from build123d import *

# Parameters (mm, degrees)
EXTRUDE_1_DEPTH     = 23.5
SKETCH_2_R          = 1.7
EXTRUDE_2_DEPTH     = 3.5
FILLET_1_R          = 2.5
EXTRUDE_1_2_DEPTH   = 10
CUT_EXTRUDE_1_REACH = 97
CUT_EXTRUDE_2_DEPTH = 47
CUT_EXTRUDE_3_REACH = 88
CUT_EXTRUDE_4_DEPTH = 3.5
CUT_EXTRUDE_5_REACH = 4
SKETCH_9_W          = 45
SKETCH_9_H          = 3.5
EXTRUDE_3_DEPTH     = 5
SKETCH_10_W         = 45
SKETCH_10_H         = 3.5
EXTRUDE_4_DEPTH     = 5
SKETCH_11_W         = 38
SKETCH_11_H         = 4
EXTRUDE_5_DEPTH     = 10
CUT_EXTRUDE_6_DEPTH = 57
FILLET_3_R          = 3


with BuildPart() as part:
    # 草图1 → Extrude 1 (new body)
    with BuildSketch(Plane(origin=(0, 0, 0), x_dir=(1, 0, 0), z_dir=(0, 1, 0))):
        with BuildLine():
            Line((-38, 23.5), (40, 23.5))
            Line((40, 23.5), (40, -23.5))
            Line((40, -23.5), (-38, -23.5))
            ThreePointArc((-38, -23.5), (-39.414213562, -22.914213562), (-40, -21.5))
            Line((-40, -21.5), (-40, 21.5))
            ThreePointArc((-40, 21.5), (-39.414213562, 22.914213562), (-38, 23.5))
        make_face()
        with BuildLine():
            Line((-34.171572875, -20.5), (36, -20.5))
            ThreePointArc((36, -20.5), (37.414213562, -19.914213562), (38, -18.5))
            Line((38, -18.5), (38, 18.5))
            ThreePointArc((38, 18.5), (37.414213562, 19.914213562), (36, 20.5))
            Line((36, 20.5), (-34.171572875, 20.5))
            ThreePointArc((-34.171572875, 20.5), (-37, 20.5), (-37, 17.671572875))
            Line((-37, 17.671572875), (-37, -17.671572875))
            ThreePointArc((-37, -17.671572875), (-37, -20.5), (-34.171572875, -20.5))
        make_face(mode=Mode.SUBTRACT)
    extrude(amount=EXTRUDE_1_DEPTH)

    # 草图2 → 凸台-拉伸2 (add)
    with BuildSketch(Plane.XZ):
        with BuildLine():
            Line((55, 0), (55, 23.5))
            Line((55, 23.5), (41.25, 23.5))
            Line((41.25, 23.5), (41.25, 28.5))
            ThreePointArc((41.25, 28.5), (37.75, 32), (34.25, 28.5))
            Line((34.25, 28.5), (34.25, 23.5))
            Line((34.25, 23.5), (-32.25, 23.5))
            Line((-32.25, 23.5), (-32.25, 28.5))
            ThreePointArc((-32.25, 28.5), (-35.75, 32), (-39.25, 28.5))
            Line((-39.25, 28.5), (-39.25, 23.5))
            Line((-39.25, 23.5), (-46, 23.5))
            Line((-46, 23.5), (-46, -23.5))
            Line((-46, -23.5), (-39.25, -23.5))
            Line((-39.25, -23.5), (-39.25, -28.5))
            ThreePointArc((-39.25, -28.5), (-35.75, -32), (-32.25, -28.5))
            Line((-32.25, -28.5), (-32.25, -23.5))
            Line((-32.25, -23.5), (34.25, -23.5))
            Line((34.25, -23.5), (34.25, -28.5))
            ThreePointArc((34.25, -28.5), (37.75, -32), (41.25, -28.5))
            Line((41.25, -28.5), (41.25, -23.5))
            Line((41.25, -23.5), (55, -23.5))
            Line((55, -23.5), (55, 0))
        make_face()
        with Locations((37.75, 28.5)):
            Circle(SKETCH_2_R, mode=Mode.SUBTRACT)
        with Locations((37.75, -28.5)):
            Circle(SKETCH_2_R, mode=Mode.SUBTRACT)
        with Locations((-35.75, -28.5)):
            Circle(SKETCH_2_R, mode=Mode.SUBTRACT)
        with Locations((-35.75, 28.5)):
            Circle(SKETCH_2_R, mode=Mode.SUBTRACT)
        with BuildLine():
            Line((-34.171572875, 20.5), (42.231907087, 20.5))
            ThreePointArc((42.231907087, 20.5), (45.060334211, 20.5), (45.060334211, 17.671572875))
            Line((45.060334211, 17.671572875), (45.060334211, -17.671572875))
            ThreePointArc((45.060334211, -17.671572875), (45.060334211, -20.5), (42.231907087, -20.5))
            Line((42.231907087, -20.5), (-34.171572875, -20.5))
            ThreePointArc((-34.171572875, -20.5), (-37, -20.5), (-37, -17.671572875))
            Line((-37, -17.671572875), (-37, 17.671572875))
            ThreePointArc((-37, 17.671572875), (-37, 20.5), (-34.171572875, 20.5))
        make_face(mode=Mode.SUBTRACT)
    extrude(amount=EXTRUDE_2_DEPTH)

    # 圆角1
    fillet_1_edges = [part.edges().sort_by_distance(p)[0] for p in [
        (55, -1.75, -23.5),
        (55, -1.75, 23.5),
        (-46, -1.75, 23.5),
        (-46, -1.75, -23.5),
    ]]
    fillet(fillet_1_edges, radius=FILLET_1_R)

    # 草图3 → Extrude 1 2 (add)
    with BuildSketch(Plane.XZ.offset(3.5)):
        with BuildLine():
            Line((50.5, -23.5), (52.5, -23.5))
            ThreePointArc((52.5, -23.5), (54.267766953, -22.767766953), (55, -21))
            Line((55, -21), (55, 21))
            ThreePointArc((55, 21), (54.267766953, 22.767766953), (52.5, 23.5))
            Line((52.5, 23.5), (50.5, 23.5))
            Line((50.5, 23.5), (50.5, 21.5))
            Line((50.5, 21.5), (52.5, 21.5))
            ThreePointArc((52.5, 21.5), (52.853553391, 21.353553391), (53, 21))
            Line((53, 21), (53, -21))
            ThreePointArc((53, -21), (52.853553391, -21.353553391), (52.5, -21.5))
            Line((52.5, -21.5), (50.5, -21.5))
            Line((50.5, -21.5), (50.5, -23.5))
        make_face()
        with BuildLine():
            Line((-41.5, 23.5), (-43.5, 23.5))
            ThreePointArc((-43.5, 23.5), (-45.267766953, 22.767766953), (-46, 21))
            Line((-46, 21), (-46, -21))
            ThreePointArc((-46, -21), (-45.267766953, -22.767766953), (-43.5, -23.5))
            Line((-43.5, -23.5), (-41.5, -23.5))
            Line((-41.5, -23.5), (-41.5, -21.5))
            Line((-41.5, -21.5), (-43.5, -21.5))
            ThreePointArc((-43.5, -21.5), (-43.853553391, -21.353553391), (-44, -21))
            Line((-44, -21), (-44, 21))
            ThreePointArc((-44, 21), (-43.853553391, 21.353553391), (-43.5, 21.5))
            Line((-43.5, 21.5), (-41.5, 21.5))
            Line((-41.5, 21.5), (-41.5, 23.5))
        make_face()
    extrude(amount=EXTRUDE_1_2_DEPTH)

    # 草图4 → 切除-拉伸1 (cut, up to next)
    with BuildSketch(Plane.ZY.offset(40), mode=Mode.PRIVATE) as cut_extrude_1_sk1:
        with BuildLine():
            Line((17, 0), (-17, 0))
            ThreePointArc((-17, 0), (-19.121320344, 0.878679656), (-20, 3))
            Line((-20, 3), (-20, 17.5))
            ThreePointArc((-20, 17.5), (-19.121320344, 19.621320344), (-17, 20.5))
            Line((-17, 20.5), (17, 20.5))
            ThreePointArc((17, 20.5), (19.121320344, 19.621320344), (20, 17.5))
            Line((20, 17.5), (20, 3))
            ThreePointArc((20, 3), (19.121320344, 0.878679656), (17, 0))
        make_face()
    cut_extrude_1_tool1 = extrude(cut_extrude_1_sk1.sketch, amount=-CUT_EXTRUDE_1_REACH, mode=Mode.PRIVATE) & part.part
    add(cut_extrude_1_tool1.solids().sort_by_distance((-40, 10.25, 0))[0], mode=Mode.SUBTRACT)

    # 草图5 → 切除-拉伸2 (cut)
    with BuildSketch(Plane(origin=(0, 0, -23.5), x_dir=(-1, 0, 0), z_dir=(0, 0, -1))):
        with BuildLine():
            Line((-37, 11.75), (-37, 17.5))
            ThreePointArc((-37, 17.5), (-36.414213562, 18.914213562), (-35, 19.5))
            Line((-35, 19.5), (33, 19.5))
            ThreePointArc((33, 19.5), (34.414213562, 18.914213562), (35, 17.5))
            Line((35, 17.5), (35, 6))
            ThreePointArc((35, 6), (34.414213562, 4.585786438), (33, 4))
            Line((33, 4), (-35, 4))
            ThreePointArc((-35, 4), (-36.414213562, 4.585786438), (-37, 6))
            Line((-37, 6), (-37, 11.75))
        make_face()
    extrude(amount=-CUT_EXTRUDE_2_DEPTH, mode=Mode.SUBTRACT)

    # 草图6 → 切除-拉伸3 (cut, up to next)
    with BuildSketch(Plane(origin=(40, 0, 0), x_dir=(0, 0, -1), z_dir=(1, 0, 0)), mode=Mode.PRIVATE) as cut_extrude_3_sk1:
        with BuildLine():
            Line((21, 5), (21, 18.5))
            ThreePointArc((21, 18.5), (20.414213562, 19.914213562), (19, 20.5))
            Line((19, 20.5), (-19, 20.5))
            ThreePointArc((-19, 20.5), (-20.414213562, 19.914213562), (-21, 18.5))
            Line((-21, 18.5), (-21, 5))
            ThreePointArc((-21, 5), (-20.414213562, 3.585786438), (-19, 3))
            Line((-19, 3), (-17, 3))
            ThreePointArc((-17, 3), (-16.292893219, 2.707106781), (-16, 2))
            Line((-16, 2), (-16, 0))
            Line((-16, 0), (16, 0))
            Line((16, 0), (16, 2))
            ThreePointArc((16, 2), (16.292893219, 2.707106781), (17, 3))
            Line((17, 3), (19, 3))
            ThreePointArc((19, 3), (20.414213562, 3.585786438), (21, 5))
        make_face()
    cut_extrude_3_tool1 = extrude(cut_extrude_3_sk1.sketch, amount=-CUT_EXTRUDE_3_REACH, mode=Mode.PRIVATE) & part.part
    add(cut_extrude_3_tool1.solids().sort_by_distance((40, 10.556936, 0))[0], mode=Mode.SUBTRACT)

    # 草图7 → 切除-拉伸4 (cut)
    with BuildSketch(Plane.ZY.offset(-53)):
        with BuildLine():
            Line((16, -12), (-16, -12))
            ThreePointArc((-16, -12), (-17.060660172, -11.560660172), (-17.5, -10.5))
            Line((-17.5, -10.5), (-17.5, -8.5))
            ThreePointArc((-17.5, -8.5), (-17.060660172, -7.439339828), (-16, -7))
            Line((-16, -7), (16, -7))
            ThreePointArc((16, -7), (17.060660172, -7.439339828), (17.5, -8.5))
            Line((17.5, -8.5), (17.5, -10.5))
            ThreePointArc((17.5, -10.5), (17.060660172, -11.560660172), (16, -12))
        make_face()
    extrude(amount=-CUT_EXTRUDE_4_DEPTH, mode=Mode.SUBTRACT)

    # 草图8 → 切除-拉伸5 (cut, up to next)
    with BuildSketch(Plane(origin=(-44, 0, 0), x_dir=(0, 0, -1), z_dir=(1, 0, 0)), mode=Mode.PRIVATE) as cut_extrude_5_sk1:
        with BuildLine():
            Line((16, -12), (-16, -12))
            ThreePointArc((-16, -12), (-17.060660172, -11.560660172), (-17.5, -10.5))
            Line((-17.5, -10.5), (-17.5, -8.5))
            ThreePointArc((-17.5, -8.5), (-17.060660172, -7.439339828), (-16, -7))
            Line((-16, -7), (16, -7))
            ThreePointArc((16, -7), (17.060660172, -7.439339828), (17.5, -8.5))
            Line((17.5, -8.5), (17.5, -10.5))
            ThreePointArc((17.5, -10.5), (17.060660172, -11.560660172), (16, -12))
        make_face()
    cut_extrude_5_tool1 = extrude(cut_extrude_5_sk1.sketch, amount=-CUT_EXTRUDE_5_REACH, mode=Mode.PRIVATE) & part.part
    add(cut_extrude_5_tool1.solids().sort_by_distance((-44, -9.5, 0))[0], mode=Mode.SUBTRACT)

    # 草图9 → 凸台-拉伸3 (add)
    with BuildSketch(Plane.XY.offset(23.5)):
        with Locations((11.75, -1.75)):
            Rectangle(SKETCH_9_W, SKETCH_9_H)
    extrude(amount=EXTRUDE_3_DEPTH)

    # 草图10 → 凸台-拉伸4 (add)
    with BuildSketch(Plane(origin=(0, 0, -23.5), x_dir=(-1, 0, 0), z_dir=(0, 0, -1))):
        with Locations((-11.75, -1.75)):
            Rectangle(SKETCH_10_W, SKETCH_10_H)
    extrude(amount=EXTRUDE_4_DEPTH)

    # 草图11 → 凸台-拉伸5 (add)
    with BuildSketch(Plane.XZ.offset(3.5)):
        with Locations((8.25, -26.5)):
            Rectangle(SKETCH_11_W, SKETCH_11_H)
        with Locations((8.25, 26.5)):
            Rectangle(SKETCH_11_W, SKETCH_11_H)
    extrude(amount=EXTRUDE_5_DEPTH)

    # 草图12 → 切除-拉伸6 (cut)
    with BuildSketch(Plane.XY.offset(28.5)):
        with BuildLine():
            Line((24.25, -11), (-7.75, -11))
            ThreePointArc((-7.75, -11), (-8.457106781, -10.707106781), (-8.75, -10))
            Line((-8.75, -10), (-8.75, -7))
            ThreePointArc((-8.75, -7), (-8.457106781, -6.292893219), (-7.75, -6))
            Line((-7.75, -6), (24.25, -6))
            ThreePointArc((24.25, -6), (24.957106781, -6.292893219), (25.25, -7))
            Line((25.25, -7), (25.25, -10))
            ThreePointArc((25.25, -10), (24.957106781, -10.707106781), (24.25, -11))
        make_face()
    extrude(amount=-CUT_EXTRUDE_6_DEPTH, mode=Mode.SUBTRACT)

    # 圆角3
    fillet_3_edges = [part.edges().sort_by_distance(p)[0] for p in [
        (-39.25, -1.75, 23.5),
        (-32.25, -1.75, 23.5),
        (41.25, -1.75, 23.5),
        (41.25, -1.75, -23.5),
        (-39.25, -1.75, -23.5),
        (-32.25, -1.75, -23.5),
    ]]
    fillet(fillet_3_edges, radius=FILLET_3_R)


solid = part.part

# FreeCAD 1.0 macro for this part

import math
import FreeCAD as App
import Part
import Sketcher
from FreeCAD import Vector
Q = App.Units.Quantity


def edges_at(feature, points):
    """Names of the edges that pass closest to the given points."""
    edges = feature.Shape.Edges
    near = lambda p: min(range(len(edges)), key=lambda i: edges[i].distToShape(Part.Vertex(*p))[0])
    return sorted({f"Edge{near(p) + 1}" for p in points})

doc = App.newDocument("Part")
body = doc.addObject("PartDesign::Body", "Body")

# Sketch on XZ plane
sketch1 = body.newObject("Sketcher::SketchObject", "Sketch")
sketch1.AttachmentSupport = (doc.getObject("XZ_Plane"), [""])
sketch1.MapMode = "FlatFace"
sketch1.addGeometry([
    Part.LineSegment(Vector(40, -23.5, 0), Vector(-38, -23.5, 0)),  # 0
    Part.ArcOfCircle(Part.Circle(Vector(-38, -21.5, 0), Vector(0, 0, 1), 2), math.radians(-180), math.radians(-90)),  # 1
    Part.LineSegment(Vector(-40, -21.5, 0), Vector(-40, 21.5, 0)),  # 2
    Part.ArcOfCircle(Part.Circle(Vector(-38, 21.5, 0), Vector(0, 0, 1), 2), math.radians(90), math.radians(180)),  # 3
    Part.LineSegment(Vector(-38, 23.5, 0), Vector(40, 23.5, 0)),  # 4
    Part.LineSegment(Vector(40, 23.5, 0), Vector(40, -23.5, 0)),  # 5
    Part.ArcOfCircle(Part.Circle(Vector(-35.6, 19.1, 0), Vector(0, 0, 1), 2), math.radians(45), math.radians(225)),  # 6
    Part.LineSegment(Vector(-37, 17.7, 0), Vector(-37, -17.7, 0)),  # 7
    Part.ArcOfCircle(Part.Circle(Vector(-35.6, -19.1, 0), Vector(0, 0, 1), 2), math.radians(135), math.radians(315)),  # 8
    Part.LineSegment(Vector(-34.2, -20.5, 0), Vector(36, -20.5, 0)),  # 9
    Part.ArcOfCircle(Part.Circle(Vector(36, -18.5, 0), Vector(0, 0, 1), 2), math.radians(-90), math.radians(0)),  # 10
    Part.LineSegment(Vector(38, -18.5, 0), Vector(38, 18.5, 0)),  # 11
    Part.ArcOfCircle(Part.Circle(Vector(36, 18.5, 0), Vector(0, 0, 1), 2), math.radians(0), math.radians(90)),  # 12
    Part.LineSegment(Vector(36, 20.5, 0), Vector(-34.2, 20.5, 0)),  # 13
], False)
sketch1.addConstraint([
    Sketcher.Constraint("Tangent", 0, 2, 1, 2),
    Sketcher.Constraint("Tangent", 1, 1, 2, 1),
    Sketcher.Constraint("Tangent", 2, 2, 3, 2),
    Sketcher.Constraint("Tangent", 3, 1, 4, 1),
    Sketcher.Constraint("Coincident", 4, 2, 5, 1),
    Sketcher.Constraint("Coincident", 5, 2, 0, 1),
    Sketcher.Constraint("Coincident", 6, 2, 7, 1),
    Sketcher.Constraint("Coincident", 7, 2, 8, 1),
    Sketcher.Constraint("Coincident", 8, 2, 9, 1),
    Sketcher.Constraint("Tangent", 9, 2, 10, 1),
    Sketcher.Constraint("Tangent", 10, 2, 11, 1),
    Sketcher.Constraint("Tangent", 11, 2, 12, 1),
    Sketcher.Constraint("Tangent", 12, 2, 13, 1),
    Sketcher.Constraint("Coincident", 13, 2, 6, 1),
    Sketcher.Constraint("Horizontal", 0),
    Sketcher.Constraint("Vertical", 2),
    Sketcher.Constraint("Horizontal", 4),
    Sketcher.Constraint("Vertical", 5),
    Sketcher.Constraint("Vertical", 7),
    Sketcher.Constraint("Horizontal", 9),
    Sketcher.Constraint("Vertical", 11),
    Sketcher.Constraint("Horizontal", 13),
    Sketcher.Constraint("Equal", 1, 3),
    Sketcher.Constraint("Equal", 3, 6),
    Sketcher.Constraint("Equal", 6, 8),
    Sketcher.Constraint("Equal", 8, 10),
    Sketcher.Constraint("Equal", 10, 12),
    Sketcher.Constraint("Symmetric", 6, 3, 8, 3, -1),
    Sketcher.Constraint("Vertical", 8, 2, 13, 2),
    Sketcher.Constraint("Radius", 1, Q("2 mm")),
    Sketcher.Constraint("DistanceX", 0, 2, 0, 1, Q("78 mm")),
    Sketcher.Constraint("DistanceY", 2, 1, 2, 2, Q("43 mm")),
    Sketcher.Constraint("DistanceY", 11, 1, 11, 2, Q("37 mm")),
    Sketcher.Constraint("DistanceX", 1, 3, -1, 1, Q("38 mm")),
    Sketcher.Constraint("DistanceX", -1, 1, 10, 3, Q("36 mm")),
    Sketcher.Constraint("DistanceX", 6, 2, -1, 1, Q("37 mm")),
    Sketcher.Constraint("DistanceY", 1, 3, 10, 3, Q("3 mm")),
    Sketcher.Constraint("DistanceX", 9, 1, 9, 2, Q("70.171573 mm")),
    Sketcher.Constraint("DistanceY", 8, 3, 6, 2, Q("36.757359 mm")),
])
pad1 = body.newObject("PartDesign::Pad", "Pad")
pad1.Profile = sketch1
pad1.Length = 23.5
pad1.Reversed = True

# Sketch on XZ plane
sketch2 = body.newObject("Sketcher::SketchObject", "Sketch001")
sketch2.AttachmentSupport = (doc.getObject("XZ_Plane"), [""])
sketch2.MapMode = "FlatFace"
sketch2.addGeometry([
    Part.LineSegment(Vector(55, 23.5, 0), Vector(41.2, 23.5, 0)),  # 0
    Part.LineSegment(Vector(41.2, 23.5, 0), Vector(41.2, 28.5, 0)),  # 1
    Part.ArcOfCircle(Part.Circle(Vector(37.8, 28.5, 0), Vector(0, 0, 1), 3.5), math.radians(0), math.radians(180)),  # 2
    Part.LineSegment(Vector(34.2, 28.5, 0), Vector(34.2, 23.5, 0)),  # 3
    Part.LineSegment(Vector(34.2, 23.5, 0), Vector(-32.2, 23.5, 0)),  # 4
    Part.LineSegment(Vector(-32.2, 23.5, 0), Vector(-32.2, 28.5, 0)),  # 5
    Part.ArcOfCircle(Part.Circle(Vector(-35.8, 28.5, 0), Vector(0, 0, 1), 3.5), math.radians(0), math.radians(180)),  # 6
    Part.LineSegment(Vector(-39.2, 28.5, 0), Vector(-39.2, 23.5, 0)),  # 7
    Part.LineSegment(Vector(-39.2, 23.5, 0), Vector(-46, 23.5, 0)),  # 8
    Part.LineSegment(Vector(-46, 23.5, 0), Vector(-46, -23.5, 0)),  # 9
    Part.LineSegment(Vector(-46, -23.5, 0), Vector(-39.2, -23.5, 0)),  # 10
    Part.LineSegment(Vector(-39.2, -23.5, 0), Vector(-39.2, -28.5, 0)),  # 11
    Part.ArcOfCircle(Part.Circle(Vector(-35.8, -28.5, 0), Vector(0, 0, 1), 3.5), math.radians(180), math.radians(360)),  # 12
    Part.LineSegment(Vector(-32.2, -28.5, 0), Vector(-32.2, -23.5, 0)),  # 13
    Part.LineSegment(Vector(-32.2, -23.5, 0), Vector(34.2, -23.5, 0)),  # 14
    Part.LineSegment(Vector(34.2, -23.5, 0), Vector(34.2, -28.5, 0)),  # 15
    Part.ArcOfCircle(Part.Circle(Vector(37.8, -28.5, 0), Vector(0, 0, 1), 3.5), math.radians(180), math.radians(360)),  # 16
    Part.LineSegment(Vector(41.2, -28.5, 0), Vector(41.2, -23.5, 0)),  # 17
    Part.LineSegment(Vector(41.2, -23.5, 0), Vector(55, -23.5, 0)),  # 18
    Part.LineSegment(Vector(55, -23.5, 0), Vector(55, 23.5, 0)),  # 19
    Part.Circle(Vector(-35.8, -28.5, 0), Vector(0, 0, 1), 1.7),  # 20
    Part.Circle(Vector(37.8, -28.5, 0), Vector(0, 0, 1), 1.7),  # 21
    Part.Circle(Vector(-35.8, 28.5, 0), Vector(0, 0, 1), 1.7),  # 22
    Part.ArcOfCircle(Part.Circle(Vector(-35.6, 19.1, 0), Vector(0, 0, 1), 2), math.radians(45), math.radians(225)),  # 23
    Part.LineSegment(Vector(-34.2, 20.5, 0), Vector(42.2, 20.5, 0)),  # 24
    Part.ArcOfCircle(Part.Circle(Vector(43.6, 19.1, 0), Vector(0, 0, 1), 2), math.radians(-45), math.radians(135)),  # 25
    Part.LineSegment(Vector(45.1, 17.7, 0), Vector(45.1, -17.7, 0)),  # 26
    Part.ArcOfCircle(Part.Circle(Vector(43.6, -19.1, 0), Vector(0, 0, 1), 2), math.radians(-135), math.radians(45)),  # 27
    Part.LineSegment(Vector(42.2, -20.5, 0), Vector(-34.2, -20.5, 0)),  # 28
    Part.ArcOfCircle(Part.Circle(Vector(-35.6, -19.1, 0), Vector(0, 0, 1), 2), math.radians(135), math.radians(315)),  # 29
    Part.LineSegment(Vector(-37, -17.7, 0), Vector(-37, 17.7, 0)),  # 30
    Part.Circle(Vector(37.8, 28.5, 0), Vector(0, 0, 1), 1.7),  # 31
], False)
sketch2.addConstraint([
    Sketcher.Constraint("Coincident", 0, 2, 1, 1),
    Sketcher.Constraint("Tangent", 1, 2, 2, 1),
    Sketcher.Constraint("Tangent", 2, 2, 3, 1),
    Sketcher.Constraint("Coincident", 3, 2, 4, 1),
    Sketcher.Constraint("Coincident", 4, 2, 5, 1),
    Sketcher.Constraint("Tangent", 5, 2, 6, 1),
    Sketcher.Constraint("Tangent", 6, 2, 7, 1),
    Sketcher.Constraint("Coincident", 7, 2, 8, 1),
    Sketcher.Constraint("Coincident", 8, 2, 9, 1),
    Sketcher.Constraint("Coincident", 9, 2, 10, 1),
    Sketcher.Constraint("Coincident", 10, 2, 11, 1),
    Sketcher.Constraint("Tangent", 11, 2, 12, 1),
    Sketcher.Constraint("Tangent", 12, 2, 13, 1),
    Sketcher.Constraint("Coincident", 13, 2, 14, 1),
    Sketcher.Constraint("Coincident", 14, 2, 15, 1),
    Sketcher.Constraint("Tangent", 15, 2, 16, 1),
    Sketcher.Constraint("Tangent", 16, 2, 17, 1),
    Sketcher.Constraint("Coincident", 17, 2, 18, 1),
    Sketcher.Constraint("Coincident", 18, 2, 19, 1),
    Sketcher.Constraint("Coincident", 19, 2, 0, 1),
    Sketcher.Constraint("Coincident", 23, 1, 24, 1),
    Sketcher.Constraint("Coincident", 24, 2, 25, 2),
    Sketcher.Constraint("Coincident", 25, 1, 26, 1),
    Sketcher.Constraint("Coincident", 26, 2, 27, 2),
    Sketcher.Constraint("Coincident", 27, 1, 28, 1),
    Sketcher.Constraint("Coincident", 28, 2, 29, 2),
    Sketcher.Constraint("Coincident", 29, 1, 30, 1),
    Sketcher.Constraint("Coincident", 30, 2, 23, 2),
    Sketcher.Constraint("Horizontal", 0),
    Sketcher.Constraint("Vertical", 1),
    Sketcher.Constraint("Vertical", 3),
    Sketcher.Constraint("Horizontal", 4),
    Sketcher.Constraint("Vertical", 5),
    Sketcher.Constraint("Vertical", 7),
    Sketcher.Constraint("Horizontal", 8),
    Sketcher.Constraint("Vertical", 9),
    Sketcher.Constraint("Horizontal", 10),
    Sketcher.Constraint("Vertical", 11),
    Sketcher.Constraint("Vertical", 13),
    Sketcher.Constraint("Horizontal", 14),
    Sketcher.Constraint("Vertical", 15),
    Sketcher.Constraint("Vertical", 17),
    Sketcher.Constraint("Horizontal", 18),
    Sketcher.Constraint("Vertical", 19),
    Sketcher.Constraint("Horizontal", 24),
    Sketcher.Constraint("Vertical", 26),
    Sketcher.Constraint("Horizontal", 28),
    Sketcher.Constraint("Vertical", 30),
    Sketcher.Constraint("Coincident", 20, 3, 12, 3),
    Sketcher.Constraint("Coincident", 21, 3, 16, 3),
    Sketcher.Constraint("Coincident", 22, 3, 6, 3),
    Sketcher.Constraint("Coincident", 31, 3, 2, 3),
    Sketcher.Constraint("Equal", 2, 6),
    Sketcher.Constraint("Equal", 6, 12),
    Sketcher.Constraint("Equal", 12, 16),
    Sketcher.Constraint("Equal", 20, 21),
    Sketcher.Constraint("Equal", 21, 22),
    Sketcher.Constraint("Equal", 23, 25),
    Sketcher.Constraint("Equal", 25, 27),
    Sketcher.Constraint("Equal", 27, 29),
    Sketcher.Constraint("Equal", 22, 31),
    Sketcher.Constraint("Symmetric", 6, 3, 12, 3, -1),
    Sketcher.Constraint("Symmetric", 2, 3, 16, 3, -1),
    Sketcher.Constraint("Symmetric", 25, 3, 27, 3, -1),
    Sketcher.Constraint("Symmetric", 23, 3, 29, 3, -1),
    Sketcher.Constraint("Horizontal", 2, 3, 6, 3),
    Sketcher.Constraint("Horizontal", 23, 3, 25, 3),
    Sketcher.Constraint("Horizontal", 0, 2, 3, 2),
    Sketcher.Constraint("Horizontal", 4, 2, 7, 2),
    Sketcher.Constraint("Horizontal", 10, 2, 13, 2),
    Sketcher.Constraint("Horizontal", 14, 2, 17, 2),
    Sketcher.Constraint("Horizontal", 26, 2, 29, 1),
    Sketcher.Constraint("Vertical", 24, 2, 27, 1),
    Sketcher.Constraint("Equal", 7, 11),
    Sketcher.Constraint("Radius", 23, Q("2 mm")),
    Sketcher.Constraint("Diameter", 20, Q("3.4 mm")),
    Sketcher.Constraint("Radius", 2, Q("3.5 mm")),
    Sketcher.Constraint("DistanceY", 1, 1, 1, 2, Q("5 mm")),
    Sketcher.Constraint("DistanceY", 9, 2, 9, 1, Q("47 mm")),
    Sketcher.Constraint("DistanceX", 4, 2, 4, 1, Q("66.5 mm")),
    Sketcher.Constraint("DistanceX", 8, 2, -1, 1, Q("46 mm")),
    Sketcher.Constraint("DistanceX", -1, 1, 18, 2, Q("55 mm")),
    Sketcher.Constraint("DistanceX", 29, 1, -1, 1, Q("37 mm")),
    Sketcher.Constraint("DistanceY", 23, 1, 4, 2, Q("3 mm")),
    Sketcher.Constraint("DistanceX", 0, 2, 0, 1, Q("13.75 mm")),
    Sketcher.Constraint("DistanceX", 24, 1, 24, 2, Q("76.40348 mm")),
    Sketcher.Constraint("DistanceY", 26, 2, 26, 1, Q("35.343146 mm")),
    Sketcher.Constraint("DistanceX", -1, 1, 25, 3, Q("43.646121 mm")),
])
pad2 = body.newObject("PartDesign::Pad", "Pad001")
pad2.Profile = sketch2
pad2.Length = 3.5
doc.recompute()

fillet = body.newObject("PartDesign::Fillet", "Fillet")
fillet.Base = (pad2, edges_at(pad2, [
    (55, -1.75, -23.5),
    (55, -1.75, 23.5),
    (-46, -1.75, 23.5),
    (-46, -1.75, -23.5),
]))
fillet.Radius = 2.5

# Sketch on XZ plane
sketch3 = body.newObject("Sketcher::SketchObject", "Sketch002")
sketch3.AttachmentSupport = (doc.getObject("XZ_Plane"), [""])
sketch3.MapMode = "FlatFace"
sketch3.AttachmentOffset = App.Placement(Vector(0, 0, 3.5), App.Rotation())
sketch3.addGeometry([
    Part.LineSegment(Vector(50.5, -23.5, 0), Vector(52.5, -23.5, 0)),  # 0
    Part.ArcOfCircle(Part.Circle(Vector(52.5, -21, 0), Vector(0, 0, 1), 2.5), math.radians(-90), math.radians(0)),  # 1
    Part.LineSegment(Vector(55, -21, 0), Vector(55, 21, 0)),  # 2
    Part.ArcOfCircle(Part.Circle(Vector(52.5, 21, 0), Vector(0, 0, 1), 2.5), math.radians(0), math.radians(90)),  # 3
    Part.LineSegment(Vector(52.5, 23.5, 0), Vector(50.5, 23.5, 0)),  # 4
    Part.LineSegment(Vector(50.5, 23.5, 0), Vector(50.5, 21.5, 0)),  # 5
    Part.LineSegment(Vector(50.5, 21.5, 0), Vector(52.5, 21.5, 0)),  # 6
    Part.ArcOfCircle(Part.Circle(Vector(52.5, 21, 0), Vector(0, 0, 1), 0.5), math.radians(0), math.radians(90)),  # 7
    Part.LineSegment(Vector(53, 21, 0), Vector(53, -21, 0)),  # 8
    Part.ArcOfCircle(Part.Circle(Vector(52.5, -21, 0), Vector(0, 0, 1), 0.5), math.radians(-90), math.radians(0)),  # 9
    Part.LineSegment(Vector(52.5, -21.5, 0), Vector(50.5, -21.5, 0)),  # 10
    Part.LineSegment(Vector(50.5, -21.5, 0), Vector(50.5, -23.5, 0)),  # 11
    Part.LineSegment(Vector(-41.5, 23.5, 0), Vector(-43.5, 23.5, 0)),  # 12
    Part.ArcOfCircle(Part.Circle(Vector(-43.5, 21, 0), Vector(0, 0, 1), 2.5), math.radians(90), math.radians(180)),  # 13
    Part.LineSegment(Vector(-46, 21, 0), Vector(-46, -21, 0)),  # 14
    Part.ArcOfCircle(Part.Circle(Vector(-43.5, -21, 0), Vector(0, 0, 1), 2.5), math.radians(180), math.radians(270)),  # 15
    Part.LineSegment(Vector(-43.5, -23.5, 0), Vector(-41.5, -23.5, 0)),  # 16
    Part.LineSegment(Vector(-41.5, -23.5, 0), Vector(-41.5, -21.5, 0)),  # 17
    Part.LineSegment(Vector(-41.5, -21.5, 0), Vector(-43.5, -21.5, 0)),  # 18
    Part.ArcOfCircle(Part.Circle(Vector(-43.5, -21, 0), Vector(0, 0, 1), 0.5), math.radians(180), math.radians(270)),  # 19
    Part.LineSegment(Vector(-44, -21, 0), Vector(-44, 21, 0)),  # 20
    Part.ArcOfCircle(Part.Circle(Vector(-43.5, 21, 0), Vector(0, 0, 1), 0.5), math.radians(90), math.radians(180)),  # 21
    Part.LineSegment(Vector(-43.5, 21.5, 0), Vector(-41.5, 21.5, 0)),  # 22
    Part.LineSegment(Vector(-41.5, 21.5, 0), Vector(-41.5, 23.5, 0)),  # 23
], False)
sketch3.addConstraint([
    Sketcher.Constraint("Tangent", 0, 2, 1, 1),
    Sketcher.Constraint("Tangent", 1, 2, 2, 1),
    Sketcher.Constraint("Tangent", 2, 2, 3, 1),
    Sketcher.Constraint("Tangent", 3, 2, 4, 1),
    Sketcher.Constraint("Coincident", 4, 2, 5, 1),
    Sketcher.Constraint("Coincident", 5, 2, 6, 1),
    Sketcher.Constraint("Tangent", 6, 2, 7, 2),
    Sketcher.Constraint("Tangent", 7, 1, 8, 1),
    Sketcher.Constraint("Tangent", 8, 2, 9, 2),
    Sketcher.Constraint("Tangent", 9, 1, 10, 1),
    Sketcher.Constraint("Coincident", 10, 2, 11, 1),
    Sketcher.Constraint("Coincident", 11, 2, 0, 1),
    Sketcher.Constraint("Tangent", 12, 2, 13, 1),
    Sketcher.Constraint("Tangent", 13, 2, 14, 1),
    Sketcher.Constraint("Tangent", 14, 2, 15, 1),
    Sketcher.Constraint("Tangent", 15, 2, 16, 1),
    Sketcher.Constraint("Coincident", 16, 2, 17, 1),
    Sketcher.Constraint("Coincident", 17, 2, 18, 1),
    Sketcher.Constraint("Tangent", 18, 2, 19, 2),
    Sketcher.Constraint("Tangent", 19, 1, 20, 1),
    Sketcher.Constraint("Tangent", 20, 2, 21, 2),
    Sketcher.Constraint("Tangent", 21, 1, 22, 1),
    Sketcher.Constraint("Coincident", 22, 2, 23, 1),
    Sketcher.Constraint("Coincident", 23, 2, 12, 1),
    Sketcher.Constraint("Horizontal", 0),
    Sketcher.Constraint("Vertical", 2),
    Sketcher.Constraint("Horizontal", 4),
    Sketcher.Constraint("Vertical", 5),
    Sketcher.Constraint("Horizontal", 6),
    Sketcher.Constraint("Vertical", 8),
    Sketcher.Constraint("Horizontal", 10),
    Sketcher.Constraint("Vertical", 11),
    Sketcher.Constraint("Horizontal", 12),
    Sketcher.Constraint("Vertical", 14),
    Sketcher.Constraint("Horizontal", 16),
    Sketcher.Constraint("Vertical", 17),
    Sketcher.Constraint("Horizontal", 18),
    Sketcher.Constraint("Vertical", 20),
    Sketcher.Constraint("Horizontal", 22),
    Sketcher.Constraint("Vertical", 23),
    Sketcher.Constraint("Coincident", 7, 3, 3, 3),
    Sketcher.Constraint("Coincident", 9, 3, 1, 3),
    Sketcher.Constraint("Coincident", 19, 3, 15, 3),
    Sketcher.Constraint("Coincident", 21, 3, 13, 3),
    Sketcher.Constraint("Equal", 1, 3),
    Sketcher.Constraint("Equal", 3, 13),
    Sketcher.Constraint("Equal", 13, 15),
    Sketcher.Constraint("Equal", 9, 19),
    Sketcher.Constraint("Symmetric", 5, 2, 10, 2, -1),
    Sketcher.Constraint("Symmetric", 17, 2, 22, 2, -1),
    Sketcher.Constraint("Horizontal", 7, 3, 13, 3),
    Sketcher.Constraint("Equal", 10, 12),
    Sketcher.Constraint("Equal", 22, 5),
    Sketcher.Constraint("Radius", 1, Q("2.5 mm")),
    Sketcher.Constraint("Radius", 7, Q("0.5 mm")),
    Sketcher.Constraint("DistanceY", 2, 1, 2, 2, Q("42 mm")),
    Sketcher.Constraint("DistanceX", -1, 1, 1, 2, Q("55 mm")),
    Sketcher.Constraint("DistanceX", 13, 2, -1, 1, Q("46 mm")),
])
pad3 = body.newObject("PartDesign::Pad", "Pad002")
pad3.Profile = sketch3
pad3.Length = 10

# Sketch on YZ plane
sketch4 = body.newObject("Sketcher::SketchObject", "Sketch003")
sketch4.AttachmentSupport = (doc.getObject("YZ_Plane"), [""])
sketch4.MapMode = "FlatFace"
sketch4.AttachmentOffset = App.Placement(Vector(0, 0, -40), App.Rotation())
sketch4.addGeometry([
    Part.LineSegment(Vector(0, -17, 0), Vector(0, 17, 0)),  # 0
    Part.ArcOfCircle(Part.Circle(Vector(3, 17, 0), Vector(0, 0, 1), 3), math.radians(90), math.radians(180)),  # 1
    Part.LineSegment(Vector(3, 20, 0), Vector(17.5, 20, 0)),  # 2
    Part.ArcOfCircle(Part.Circle(Vector(17.5, 17, 0), Vector(0, 0, 1), 3), math.radians(0), math.radians(90)),  # 3
    Part.LineSegment(Vector(20.5, 17, 0), Vector(20.5, -17, 0)),  # 4
    Part.ArcOfCircle(Part.Circle(Vector(17.5, -17, 0), Vector(0, 0, 1), 3), math.radians(-90), math.radians(0)),  # 5
    Part.LineSegment(Vector(17.5, -20, 0), Vector(3, -20, 0)),  # 6
    Part.ArcOfCircle(Part.Circle(Vector(3, -17, 0), Vector(0, 0, 1), 3), math.radians(180), math.radians(270)),  # 7
], False)
sketch4.addConstraint([
    Sketcher.Constraint("Tangent", 0, 2, 1, 2),
    Sketcher.Constraint("Tangent", 1, 1, 2, 1),
    Sketcher.Constraint("Tangent", 2, 2, 3, 2),
    Sketcher.Constraint("Tangent", 3, 1, 4, 1),
    Sketcher.Constraint("Tangent", 4, 2, 5, 2),
    Sketcher.Constraint("Tangent", 5, 1, 6, 1),
    Sketcher.Constraint("Tangent", 6, 2, 7, 2),
    Sketcher.Constraint("Tangent", 7, 1, 0, 1),
    Sketcher.Constraint("Vertical", 0),
    Sketcher.Constraint("Horizontal", 2),
    Sketcher.Constraint("Vertical", 4),
    Sketcher.Constraint("Horizontal", 6),
    Sketcher.Constraint("Equal", 1, 3),
    Sketcher.Constraint("Equal", 3, 5),
    Sketcher.Constraint("Equal", 5, 7),
    Sketcher.Constraint("Symmetric", 0, 2, 7, 1, -1, 1),
    Sketcher.Constraint("Radius", 1, Q("3 mm")),
    Sketcher.Constraint("DistanceY", 0, 1, 0, 2, Q("34 mm")),
    Sketcher.Constraint("DistanceX", 2, 1, 2, 2, Q("14.5 mm")),
])
pocket1 = body.newObject("PartDesign::Pocket", "Pocket")
pocket1.Profile = sketch4
pocket1.Type = "UpToFirst"
pocket1.Reversed = True

# Sketch on XY plane
sketch5 = body.newObject("Sketcher::SketchObject", "Sketch004")
sketch5.AttachmentSupport = (doc.getObject("XY_Plane"), [""])
sketch5.MapMode = "FlatFace"
sketch5.AttachmentOffset = App.Placement(Vector(0, 0, -23.5), App.Rotation())
sketch5.addGeometry([
    Part.ArcOfCircle(Part.Circle(Vector(35, 17.5, 0), Vector(0, 0, 1), 2), math.radians(0), math.radians(90)),  # 0
    Part.LineSegment(Vector(37, 17.5, 0), Vector(37, 6, 0)),  # 1
    Part.ArcOfCircle(Part.Circle(Vector(35, 6, 0), Vector(0, 0, 1), 2), math.radians(-90), math.radians(0)),  # 2
    Part.LineSegment(Vector(35, 4, 0), Vector(-33, 4, 0)),  # 3
    Part.ArcOfCircle(Part.Circle(Vector(-33, 6, 0), Vector(0, 0, 1), 2), math.radians(-180), math.radians(-90)),  # 4
    Part.LineSegment(Vector(-35, 6, 0), Vector(-35, 17.5, 0)),  # 5
    Part.ArcOfCircle(Part.Circle(Vector(-33, 17.5, 0), Vector(0, 0, 1), 2), math.radians(90), math.radians(180)),  # 6
    Part.LineSegment(Vector(-33, 19.5, 0), Vector(35, 19.5, 0)),  # 7
], False)
sketch5.addConstraint([
    Sketcher.Constraint("Tangent", 0, 1, 1, 1),
    Sketcher.Constraint("Tangent", 1, 2, 2, 2),
    Sketcher.Constraint("Tangent", 2, 1, 3, 1),
    Sketcher.Constraint("Tangent", 3, 2, 4, 2),
    Sketcher.Constraint("Tangent", 4, 1, 5, 1),
    Sketcher.Constraint("Tangent", 5, 2, 6, 2),
    Sketcher.Constraint("Tangent", 6, 1, 7, 1),
    Sketcher.Constraint("Tangent", 7, 2, 0, 2),
    Sketcher.Constraint("Vertical", 1),
    Sketcher.Constraint("Horizontal", 3),
    Sketcher.Constraint("Vertical", 5),
    Sketcher.Constraint("Horizontal", 7),
    Sketcher.Constraint("Equal", 0, 2),
    Sketcher.Constraint("Equal", 2, 4),
    Sketcher.Constraint("Equal", 4, 6),
    Sketcher.Constraint("Radius", 0, Q("2 mm")),
    Sketcher.Constraint("DistanceX", 3, 2, 3, 1, Q("68 mm")),
    Sketcher.Constraint("DistanceY", 1, 2, 1, 1, Q("11.5 mm")),
    Sketcher.Constraint("DistanceX", -1, 1, 0, 3, Q("35 mm")),
    Sketcher.Constraint("DistanceY", -1, 1, 2, 3, Q("6 mm")),
])
pocket2 = body.newObject("PartDesign::Pocket", "Pocket001")
pocket2.Profile = sketch5
pocket2.Length = 47
pocket2.Reversed = True

# Sketch on YZ plane
sketch6 = body.newObject("Sketcher::SketchObject", "Sketch005")
sketch6.AttachmentSupport = (doc.getObject("YZ_Plane"), [""])
sketch6.MapMode = "FlatFace"
sketch6.AttachmentOffset = App.Placement(Vector(0, 0, 40), App.Rotation())
sketch6.addGeometry([
    Part.LineSegment(Vector(5, -21, 0), Vector(18.5, -21, 0)),  # 0
    Part.ArcOfCircle(Part.Circle(Vector(18.5, -19, 0), Vector(0, 0, 1), 2), math.radians(-90), math.radians(0)),  # 1
    Part.LineSegment(Vector(20.5, -19, 0), Vector(20.5, 19, 0)),  # 2
    Part.ArcOfCircle(Part.Circle(Vector(18.5, 19, 0), Vector(0, 0, 1), 2), math.radians(0), math.radians(90)),  # 3
    Part.LineSegment(Vector(18.5, 21, 0), Vector(5, 21, 0)),  # 4
    Part.ArcOfCircle(Part.Circle(Vector(5, 19, 0), Vector(0, 0, 1), 2), math.radians(90), math.radians(180)),  # 5
    Part.LineSegment(Vector(3, 19, 0), Vector(3, 17, 0)),  # 6
    Part.ArcOfCircle(Part.Circle(Vector(2, 17, 0), Vector(0, 0, 1), 1), math.radians(-90), math.radians(0)),  # 7
    Part.LineSegment(Vector(2, 16, 0), Vector(0, 16, 0)),  # 8
    Part.LineSegment(Vector(0, 16, 0), Vector(0, -16, 0)),  # 9
    Part.LineSegment(Vector(0, -16, 0), Vector(2, -16, 0)),  # 10
    Part.ArcOfCircle(Part.Circle(Vector(2, -17, 0), Vector(0, 0, 1), 1), math.radians(0), math.radians(90)),  # 11
    Part.LineSegment(Vector(3, -17, 0), Vector(3, -19, 0)),  # 12
    Part.ArcOfCircle(Part.Circle(Vector(5, -19, 0), Vector(0, 0, 1), 2), math.radians(-180), math.radians(-90)),  # 13
], False)
sketch6.addConstraint([
    Sketcher.Constraint("Tangent", 0, 2, 1, 1),
    Sketcher.Constraint("Tangent", 1, 2, 2, 1),
    Sketcher.Constraint("Tangent", 2, 2, 3, 1),
    Sketcher.Constraint("Tangent", 3, 2, 4, 1),
    Sketcher.Constraint("Tangent", 4, 2, 5, 1),
    Sketcher.Constraint("Tangent", 5, 2, 6, 1),
    Sketcher.Constraint("Tangent", 6, 2, 7, 2),
    Sketcher.Constraint("Tangent", 7, 1, 8, 1),
    Sketcher.Constraint("Coincident", 8, 2, 9, 1),
    Sketcher.Constraint("Coincident", 9, 2, 10, 1),
    Sketcher.Constraint("Tangent", 10, 2, 11, 2),
    Sketcher.Constraint("Tangent", 11, 1, 12, 1),
    Sketcher.Constraint("Tangent", 12, 2, 13, 1),
    Sketcher.Constraint("Tangent", 13, 2, 0, 1),
    Sketcher.Constraint("Horizontal", 0),
    Sketcher.Constraint("Vertical", 2),
    Sketcher.Constraint("Horizontal", 4),
    Sketcher.Constraint("Vertical", 6),
    Sketcher.Constraint("Horizontal", 8),
    Sketcher.Constraint("Vertical", 9),
    Sketcher.Constraint("Horizontal", 10),
    Sketcher.Constraint("Vertical", 12),
    Sketcher.Constraint("Equal", 1, 3),
    Sketcher.Constraint("Equal", 3, 5),
    Sketcher.Constraint("Equal", 7, 11),
    Sketcher.Constraint("Equal", 5, 13),
    Sketcher.Constraint("Symmetric", 8, 2, 9, 2, -1, 1),
    Sketcher.Constraint("Symmetric", 5, 3, 13, 3, -1),
    Sketcher.Constraint("Equal", 10, 6),
    Sketcher.Constraint("Radius", 1, Q("2 mm")),
    Sketcher.Constraint("Radius", 7, Q("1 mm")),
    Sketcher.Constraint("DistanceX", 8, 2, 8, 1, Q("2 mm")),
    Sketcher.Constraint("DistanceY", 2, 1, 2, 2, Q("38 mm")),
    Sketcher.Constraint("DistanceX", 0, 1, 0, 2, Q("13.5 mm")),
])
pocket3 = body.newObject("PartDesign::Pocket", "Pocket002")
pocket3.Profile = sketch6
pocket3.Length = 75.006316

# Sketch on YZ plane
sketch7 = body.newObject("Sketcher::SketchObject", "Sketch006")
sketch7.AttachmentSupport = (doc.getObject("YZ_Plane"), [""])
sketch7.MapMode = "FlatFace"
sketch7.AttachmentOffset = App.Placement(Vector(0, 0, 53), App.Rotation())
sketch7.addGeometry([
    Part.LineSegment(Vector(-12, -16, 0), Vector(-12, 16, 0)),  # 0
    Part.ArcOfCircle(Part.Circle(Vector(-10.5, 16, 0), Vector(0, 0, 1), 1.5), math.radians(90), math.radians(180)),  # 1
    Part.LineSegment(Vector(-10.5, 17.5, 0), Vector(-8.5, 17.5, 0)),  # 2
    Part.ArcOfCircle(Part.Circle(Vector(-8.5, 16, 0), Vector(0, 0, 1), 1.5), math.radians(0), math.radians(90)),  # 3
    Part.LineSegment(Vector(-7, 16, 0), Vector(-7, -16, 0)),  # 4
    Part.ArcOfCircle(Part.Circle(Vector(-8.5, -16, 0), Vector(0, 0, 1), 1.5), math.radians(-90), math.radians(0)),  # 5
    Part.LineSegment(Vector(-8.5, -17.5, 0), Vector(-10.5, -17.5, 0)),  # 6
    Part.ArcOfCircle(Part.Circle(Vector(-10.5, -16, 0), Vector(0, 0, 1), 1.5), math.radians(180), math.radians(270)),  # 7
], False)
sketch7.addConstraint([
    Sketcher.Constraint("Tangent", 0, 2, 1, 2),
    Sketcher.Constraint("Tangent", 1, 1, 2, 1),
    Sketcher.Constraint("Tangent", 2, 2, 3, 2),
    Sketcher.Constraint("Tangent", 3, 1, 4, 1),
    Sketcher.Constraint("Tangent", 4, 2, 5, 2),
    Sketcher.Constraint("Tangent", 5, 1, 6, 1),
    Sketcher.Constraint("Tangent", 6, 2, 7, 2),
    Sketcher.Constraint("Tangent", 7, 1, 0, 1),
    Sketcher.Constraint("Vertical", 0),
    Sketcher.Constraint("Horizontal", 2),
    Sketcher.Constraint("Vertical", 4),
    Sketcher.Constraint("Horizontal", 6),
    Sketcher.Constraint("Equal", 1, 3),
    Sketcher.Constraint("Equal", 3, 5),
    Sketcher.Constraint("Equal", 5, 7),
    Sketcher.Constraint("Radius", 1, Q("1.5 mm")),
    Sketcher.Constraint("DistanceX", 2, 1, 2, 2, Q("2 mm")),
    Sketcher.Constraint("DistanceY", 0, 1, 0, 2, Q("32 mm")),
    Sketcher.Constraint("DistanceY", -1, 1, 1, 3, Q("16 mm")),
    Sketcher.Constraint("DistanceX", 0, 2, -1, 1, Q("12 mm")),
])
pocket4 = body.newObject("PartDesign::Pocket", "Pocket003")
pocket4.Profile = sketch7
pocket4.Length = 3.5
pocket4.Reversed = True

# Sketch on YZ plane
sketch8 = body.newObject("Sketcher::SketchObject", "Sketch007")
sketch8.AttachmentSupport = (doc.getObject("YZ_Plane"), [""])
sketch8.MapMode = "FlatFace"
sketch8.AttachmentOffset = App.Placement(Vector(0, 0, -44), App.Rotation())
sketch8.addGeometry([
    Part.LineSegment(Vector(-12, 16, 0), Vector(-12, -16, 0)),  # 0
    Part.ArcOfCircle(Part.Circle(Vector(-10.5, -16, 0), Vector(0, 0, 1), 1.5), math.radians(180), math.radians(270)),  # 1
    Part.LineSegment(Vector(-10.5, -17.5, 0), Vector(-8.5, -17.5, 0)),  # 2
    Part.ArcOfCircle(Part.Circle(Vector(-8.5, -16, 0), Vector(0, 0, 1), 1.5), math.radians(-90), math.radians(0)),  # 3
    Part.LineSegment(Vector(-7, -16, 0), Vector(-7, 16, 0)),  # 4
    Part.ArcOfCircle(Part.Circle(Vector(-8.5, 16, 0), Vector(0, 0, 1), 1.5), math.radians(0), math.radians(90)),  # 5
    Part.LineSegment(Vector(-8.5, 17.5, 0), Vector(-10.5, 17.5, 0)),  # 6
    Part.ArcOfCircle(Part.Circle(Vector(-10.5, 16, 0), Vector(0, 0, 1), 1.5), math.radians(90), math.radians(180)),  # 7
], False)
sketch8.addConstraint([
    Sketcher.Constraint("Tangent", 0, 2, 1, 1),
    Sketcher.Constraint("Tangent", 1, 2, 2, 1),
    Sketcher.Constraint("Tangent", 2, 2, 3, 1),
    Sketcher.Constraint("Tangent", 3, 2, 4, 1),
    Sketcher.Constraint("Tangent", 4, 2, 5, 1),
    Sketcher.Constraint("Tangent", 5, 2, 6, 1),
    Sketcher.Constraint("Tangent", 6, 2, 7, 1),
    Sketcher.Constraint("Tangent", 7, 2, 0, 1),
    Sketcher.Constraint("Vertical", 0),
    Sketcher.Constraint("Horizontal", 2),
    Sketcher.Constraint("Vertical", 4),
    Sketcher.Constraint("Horizontal", 6),
    Sketcher.Constraint("Equal", 1, 3),
    Sketcher.Constraint("Equal", 3, 5),
    Sketcher.Constraint("Equal", 5, 7),
    Sketcher.Constraint("Radius", 1, Q("1.5 mm")),
    Sketcher.Constraint("DistanceX", 2, 1, 2, 2, Q("2 mm")),
    Sketcher.Constraint("DistanceY", 0, 2, 0, 1, Q("32 mm")),
    Sketcher.Constraint("DistanceY", 1, 3, -1, 1, Q("16 mm")),
    Sketcher.Constraint("DistanceX", 0, 2, -1, 1, Q("12 mm")),
])
pocket5 = body.newObject("PartDesign::Pocket", "Pocket004")
pocket5.Profile = sketch8
pocket5.Type = "UpToFirst"

# Sketch on XY plane
sketch9 = body.newObject("Sketcher::SketchObject", "Sketch008")
sketch9.AttachmentSupport = (doc.getObject("XY_Plane"), [""])
sketch9.MapMode = "FlatFace"
sketch9.AttachmentOffset = App.Placement(Vector(0, 0, 23.5), App.Rotation())
sketch9.addGeometry([
    Part.LineSegment(Vector(-10.8, 0, 0), Vector(-10.8, -3.5, 0)),
    Part.LineSegment(Vector(-10.8, -3.5, 0), Vector(34.2, -3.5, 0)),
    Part.LineSegment(Vector(34.2, -3.5, 0), Vector(34.2, 0, 0)),
    Part.LineSegment(Vector(34.2, 0, 0), Vector(-10.8, 0, 0)),
], False)
sketch9.addConstraint([
    Sketcher.Constraint("Coincident", 0, 2, 1, 1),
    Sketcher.Constraint("Coincident", 1, 2, 2, 1),
    Sketcher.Constraint("Coincident", 2, 2, 3, 1),
    Sketcher.Constraint("Coincident", 3, 2, 0, 1),
    Sketcher.Constraint("Vertical", 0),
    Sketcher.Constraint("Horizontal", 1),
    Sketcher.Constraint("Vertical", 2),
    Sketcher.Constraint("Horizontal", 3),
    Sketcher.Constraint("PointOnObject", 2, 2, -1),
    Sketcher.Constraint("DistanceX", 1, 1, 1, 2, Q("45 mm")),
    Sketcher.Constraint("DistanceY", 0, 2, 0, 1, Q("3.5 mm")),
    Sketcher.Constraint("DistanceX", 0, 2, -1, 1, Q("10.75 mm")),
])
pad4 = body.newObject("PartDesign::Pad", "Pad003")
pad4.Profile = sketch9
pad4.Length = 5

# Sketch on XY plane
sketch10 = body.newObject("Sketcher::SketchObject", "Sketch009")
sketch10.AttachmentSupport = (doc.getObject("XY_Plane"), [""])
sketch10.MapMode = "FlatFace"
sketch10.AttachmentOffset = App.Placement(Vector(0, 0, -23.5), App.Rotation())
sketch10.addGeometry([
    Part.LineSegment(Vector(34.2, 0, 0), Vector(34.2, -3.5, 0)),
    Part.LineSegment(Vector(34.2, -3.5, 0), Vector(-10.8, -3.5, 0)),
    Part.LineSegment(Vector(-10.8, -3.5, 0), Vector(-10.8, 0, 0)),
    Part.LineSegment(Vector(-10.8, 0, 0), Vector(34.2, 0, 0)),
], False)
sketch10.addConstraint([
    Sketcher.Constraint("Coincident", 0, 2, 1, 1),
    Sketcher.Constraint("Coincident", 1, 2, 2, 1),
    Sketcher.Constraint("Coincident", 2, 2, 3, 1),
    Sketcher.Constraint("Coincident", 3, 2, 0, 1),
    Sketcher.Constraint("Vertical", 0),
    Sketcher.Constraint("Horizontal", 1),
    Sketcher.Constraint("Vertical", 2),
    Sketcher.Constraint("Horizontal", 3),
    Sketcher.Constraint("PointOnObject", 2, 2, -1),
    Sketcher.Constraint("DistanceX", 1, 2, 1, 1, Q("45 mm")),
    Sketcher.Constraint("DistanceY", 0, 2, 0, 1, Q("3.5 mm")),
    Sketcher.Constraint("DistanceX", -1, 1, 0, 2, Q("34.25 mm")),
])
pad5 = body.newObject("PartDesign::Pad", "Pad004")
pad5.Profile = sketch10
pad5.Length = 5
pad5.Reversed = True

# Sketch on XZ plane
sketch11 = body.newObject("Sketcher::SketchObject", "Sketch010")
sketch11.AttachmentSupport = (doc.getObject("XZ_Plane"), [""])
sketch11.MapMode = "FlatFace"
sketch11.AttachmentOffset = App.Placement(Vector(0, 0, 3.5), App.Rotation())
sketch11.addGeometry([
    Part.LineSegment(Vector(-10.8, -24.5, 0), Vector(-10.8, -28.5, 0)),  # 0
    Part.LineSegment(Vector(-10.8, -28.5, 0), Vector(27.2, -28.5, 0)),  # 1
    Part.LineSegment(Vector(27.2, -28.5, 0), Vector(27.2, -24.5, 0)),  # 2
    Part.LineSegment(Vector(27.2, -24.5, 0), Vector(-10.8, -24.5, 0)),  # 3
    Part.LineSegment(Vector(-10.8, 28.5, 0), Vector(-10.8, 24.5, 0)),  # 4
    Part.LineSegment(Vector(-10.8, 24.5, 0), Vector(27.2, 24.5, 0)),  # 5
    Part.LineSegment(Vector(27.2, 24.5, 0), Vector(27.2, 28.5, 0)),  # 6
    Part.LineSegment(Vector(27.2, 28.5, 0), Vector(-10.8, 28.5, 0)),  # 7
], False)
sketch11.addConstraint([
    Sketcher.Constraint("Coincident", 0, 2, 1, 1),
    Sketcher.Constraint("Coincident", 1, 2, 2, 1),
    Sketcher.Constraint("Coincident", 2, 2, 3, 1),
    Sketcher.Constraint("Coincident", 3, 2, 0, 1),
    Sketcher.Constraint("Coincident", 4, 2, 5, 1),
    Sketcher.Constraint("Coincident", 5, 2, 6, 1),
    Sketcher.Constraint("Coincident", 6, 2, 7, 1),
    Sketcher.Constraint("Coincident", 7, 2, 4, 1),
    Sketcher.Constraint("Vertical", 0),
    Sketcher.Constraint("Horizontal", 1),
    Sketcher.Constraint("Vertical", 2),
    Sketcher.Constraint("Horizontal", 3),
    Sketcher.Constraint("Vertical", 4),
    Sketcher.Constraint("Horizontal", 5),
    Sketcher.Constraint("Vertical", 6),
    Sketcher.Constraint("Horizontal", 7),
    Sketcher.Constraint("Symmetric", 3, 2, 4, 2, -1),
    Sketcher.Constraint("Symmetric", 1, 2, 6, 2, -1),
    Sketcher.Constraint("DistanceX", 1, 1, 1, 2, Q("38 mm")),
    Sketcher.Constraint("DistanceY", 0, 2, 0, 1, Q("4 mm")),
    Sketcher.Constraint("DistanceY", 3, 2, 4, 2, Q("49 mm")),
    Sketcher.Constraint("DistanceX", 0, 2, -1, 1, Q("10.75 mm")),
])
pad6 = body.newObject("PartDesign::Pad", "Pad005")
pad6.Profile = sketch11
pad6.Length = 10

# Sketch on XY plane
sketch12 = body.newObject("Sketcher::SketchObject", "Sketch011")
sketch12.AttachmentSupport = (doc.getObject("XY_Plane"), [""])
sketch12.MapMode = "FlatFace"
sketch12.AttachmentOffset = App.Placement(Vector(0, 0, 28.5), App.Rotation())
sketch12.addGeometry([
    Part.LineSegment(Vector(-7.8, -11, 0), Vector(24.2, -11, 0)),  # 0
    Part.ArcOfCircle(Part.Circle(Vector(24.2, -10, 0), Vector(0, 0, 1), 1), math.radians(-90), math.radians(0)),  # 1
    Part.LineSegment(Vector(25.2, -10, 0), Vector(25.2, -7, 0)),  # 2
    Part.ArcOfCircle(Part.Circle(Vector(24.2, -7, 0), Vector(0, 0, 1), 1), math.radians(0), math.radians(90)),  # 3
    Part.LineSegment(Vector(24.2, -6, 0), Vector(-7.8, -6, 0)),  # 4
    Part.ArcOfCircle(Part.Circle(Vector(-7.7, -7, 0), Vector(0, 0, 1), 1), math.radians(90), math.radians(180)),  # 5
    Part.LineSegment(Vector(-8.8, -7, 0), Vector(-8.8, -10, 0)),  # 6
    Part.ArcOfCircle(Part.Circle(Vector(-7.7, -10, 0), Vector(0, 0, 1), 1), math.radians(-180), math.radians(-90)),  # 7
], False)
sketch12.addConstraint([
    Sketcher.Constraint("Tangent", 0, 2, 1, 1),
    Sketcher.Constraint("Tangent", 1, 2, 2, 1),
    Sketcher.Constraint("Tangent", 2, 2, 3, 1),
    Sketcher.Constraint("Tangent", 3, 2, 4, 1),
    Sketcher.Constraint("Tangent", 4, 2, 5, 1),
    Sketcher.Constraint("Tangent", 5, 2, 6, 1),
    Sketcher.Constraint("Tangent", 6, 2, 7, 1),
    Sketcher.Constraint("Tangent", 7, 2, 0, 1),
    Sketcher.Constraint("Horizontal", 0),
    Sketcher.Constraint("Vertical", 2),
    Sketcher.Constraint("Horizontal", 4),
    Sketcher.Constraint("Vertical", 6),
    Sketcher.Constraint("Equal", 1, 3),
    Sketcher.Constraint("Equal", 3, 5),
    Sketcher.Constraint("Equal", 5, 7),
    Sketcher.Constraint("Radius", 1, Q("1 mm")),
    Sketcher.Constraint("DistanceX", 0, 1, 0, 2, Q("32 mm")),
    Sketcher.Constraint("DistanceY", 2, 1, 2, 2, Q("3 mm")),
    Sketcher.Constraint("DistanceY", 1, 3, -1, 1, Q("10 mm")),
    Sketcher.Constraint("DistanceX", -1, 1, 1, 3, Q("24.25 mm")),
])
pocket6 = body.newObject("PartDesign::Pocket", "Pocket005")
pocket6.Profile = sketch12
pocket6.Length = 57
doc.recompute()

fillet2 = body.newObject("PartDesign::Fillet", "Fillet001")
fillet2.Base = (pocket6, edges_at(pocket6, [
    (-39.25, -1.75, 23.5),
    (-32.25, -1.75, 23.5),
    (41.25, -1.75, 23.5),
    (41.25, -1.75, -23.5),
    (-39.25, -1.75, -23.5),
    (-32.25, -1.75, -23.5),
]))
fillet2.Radius = 3

doc.recompute()
